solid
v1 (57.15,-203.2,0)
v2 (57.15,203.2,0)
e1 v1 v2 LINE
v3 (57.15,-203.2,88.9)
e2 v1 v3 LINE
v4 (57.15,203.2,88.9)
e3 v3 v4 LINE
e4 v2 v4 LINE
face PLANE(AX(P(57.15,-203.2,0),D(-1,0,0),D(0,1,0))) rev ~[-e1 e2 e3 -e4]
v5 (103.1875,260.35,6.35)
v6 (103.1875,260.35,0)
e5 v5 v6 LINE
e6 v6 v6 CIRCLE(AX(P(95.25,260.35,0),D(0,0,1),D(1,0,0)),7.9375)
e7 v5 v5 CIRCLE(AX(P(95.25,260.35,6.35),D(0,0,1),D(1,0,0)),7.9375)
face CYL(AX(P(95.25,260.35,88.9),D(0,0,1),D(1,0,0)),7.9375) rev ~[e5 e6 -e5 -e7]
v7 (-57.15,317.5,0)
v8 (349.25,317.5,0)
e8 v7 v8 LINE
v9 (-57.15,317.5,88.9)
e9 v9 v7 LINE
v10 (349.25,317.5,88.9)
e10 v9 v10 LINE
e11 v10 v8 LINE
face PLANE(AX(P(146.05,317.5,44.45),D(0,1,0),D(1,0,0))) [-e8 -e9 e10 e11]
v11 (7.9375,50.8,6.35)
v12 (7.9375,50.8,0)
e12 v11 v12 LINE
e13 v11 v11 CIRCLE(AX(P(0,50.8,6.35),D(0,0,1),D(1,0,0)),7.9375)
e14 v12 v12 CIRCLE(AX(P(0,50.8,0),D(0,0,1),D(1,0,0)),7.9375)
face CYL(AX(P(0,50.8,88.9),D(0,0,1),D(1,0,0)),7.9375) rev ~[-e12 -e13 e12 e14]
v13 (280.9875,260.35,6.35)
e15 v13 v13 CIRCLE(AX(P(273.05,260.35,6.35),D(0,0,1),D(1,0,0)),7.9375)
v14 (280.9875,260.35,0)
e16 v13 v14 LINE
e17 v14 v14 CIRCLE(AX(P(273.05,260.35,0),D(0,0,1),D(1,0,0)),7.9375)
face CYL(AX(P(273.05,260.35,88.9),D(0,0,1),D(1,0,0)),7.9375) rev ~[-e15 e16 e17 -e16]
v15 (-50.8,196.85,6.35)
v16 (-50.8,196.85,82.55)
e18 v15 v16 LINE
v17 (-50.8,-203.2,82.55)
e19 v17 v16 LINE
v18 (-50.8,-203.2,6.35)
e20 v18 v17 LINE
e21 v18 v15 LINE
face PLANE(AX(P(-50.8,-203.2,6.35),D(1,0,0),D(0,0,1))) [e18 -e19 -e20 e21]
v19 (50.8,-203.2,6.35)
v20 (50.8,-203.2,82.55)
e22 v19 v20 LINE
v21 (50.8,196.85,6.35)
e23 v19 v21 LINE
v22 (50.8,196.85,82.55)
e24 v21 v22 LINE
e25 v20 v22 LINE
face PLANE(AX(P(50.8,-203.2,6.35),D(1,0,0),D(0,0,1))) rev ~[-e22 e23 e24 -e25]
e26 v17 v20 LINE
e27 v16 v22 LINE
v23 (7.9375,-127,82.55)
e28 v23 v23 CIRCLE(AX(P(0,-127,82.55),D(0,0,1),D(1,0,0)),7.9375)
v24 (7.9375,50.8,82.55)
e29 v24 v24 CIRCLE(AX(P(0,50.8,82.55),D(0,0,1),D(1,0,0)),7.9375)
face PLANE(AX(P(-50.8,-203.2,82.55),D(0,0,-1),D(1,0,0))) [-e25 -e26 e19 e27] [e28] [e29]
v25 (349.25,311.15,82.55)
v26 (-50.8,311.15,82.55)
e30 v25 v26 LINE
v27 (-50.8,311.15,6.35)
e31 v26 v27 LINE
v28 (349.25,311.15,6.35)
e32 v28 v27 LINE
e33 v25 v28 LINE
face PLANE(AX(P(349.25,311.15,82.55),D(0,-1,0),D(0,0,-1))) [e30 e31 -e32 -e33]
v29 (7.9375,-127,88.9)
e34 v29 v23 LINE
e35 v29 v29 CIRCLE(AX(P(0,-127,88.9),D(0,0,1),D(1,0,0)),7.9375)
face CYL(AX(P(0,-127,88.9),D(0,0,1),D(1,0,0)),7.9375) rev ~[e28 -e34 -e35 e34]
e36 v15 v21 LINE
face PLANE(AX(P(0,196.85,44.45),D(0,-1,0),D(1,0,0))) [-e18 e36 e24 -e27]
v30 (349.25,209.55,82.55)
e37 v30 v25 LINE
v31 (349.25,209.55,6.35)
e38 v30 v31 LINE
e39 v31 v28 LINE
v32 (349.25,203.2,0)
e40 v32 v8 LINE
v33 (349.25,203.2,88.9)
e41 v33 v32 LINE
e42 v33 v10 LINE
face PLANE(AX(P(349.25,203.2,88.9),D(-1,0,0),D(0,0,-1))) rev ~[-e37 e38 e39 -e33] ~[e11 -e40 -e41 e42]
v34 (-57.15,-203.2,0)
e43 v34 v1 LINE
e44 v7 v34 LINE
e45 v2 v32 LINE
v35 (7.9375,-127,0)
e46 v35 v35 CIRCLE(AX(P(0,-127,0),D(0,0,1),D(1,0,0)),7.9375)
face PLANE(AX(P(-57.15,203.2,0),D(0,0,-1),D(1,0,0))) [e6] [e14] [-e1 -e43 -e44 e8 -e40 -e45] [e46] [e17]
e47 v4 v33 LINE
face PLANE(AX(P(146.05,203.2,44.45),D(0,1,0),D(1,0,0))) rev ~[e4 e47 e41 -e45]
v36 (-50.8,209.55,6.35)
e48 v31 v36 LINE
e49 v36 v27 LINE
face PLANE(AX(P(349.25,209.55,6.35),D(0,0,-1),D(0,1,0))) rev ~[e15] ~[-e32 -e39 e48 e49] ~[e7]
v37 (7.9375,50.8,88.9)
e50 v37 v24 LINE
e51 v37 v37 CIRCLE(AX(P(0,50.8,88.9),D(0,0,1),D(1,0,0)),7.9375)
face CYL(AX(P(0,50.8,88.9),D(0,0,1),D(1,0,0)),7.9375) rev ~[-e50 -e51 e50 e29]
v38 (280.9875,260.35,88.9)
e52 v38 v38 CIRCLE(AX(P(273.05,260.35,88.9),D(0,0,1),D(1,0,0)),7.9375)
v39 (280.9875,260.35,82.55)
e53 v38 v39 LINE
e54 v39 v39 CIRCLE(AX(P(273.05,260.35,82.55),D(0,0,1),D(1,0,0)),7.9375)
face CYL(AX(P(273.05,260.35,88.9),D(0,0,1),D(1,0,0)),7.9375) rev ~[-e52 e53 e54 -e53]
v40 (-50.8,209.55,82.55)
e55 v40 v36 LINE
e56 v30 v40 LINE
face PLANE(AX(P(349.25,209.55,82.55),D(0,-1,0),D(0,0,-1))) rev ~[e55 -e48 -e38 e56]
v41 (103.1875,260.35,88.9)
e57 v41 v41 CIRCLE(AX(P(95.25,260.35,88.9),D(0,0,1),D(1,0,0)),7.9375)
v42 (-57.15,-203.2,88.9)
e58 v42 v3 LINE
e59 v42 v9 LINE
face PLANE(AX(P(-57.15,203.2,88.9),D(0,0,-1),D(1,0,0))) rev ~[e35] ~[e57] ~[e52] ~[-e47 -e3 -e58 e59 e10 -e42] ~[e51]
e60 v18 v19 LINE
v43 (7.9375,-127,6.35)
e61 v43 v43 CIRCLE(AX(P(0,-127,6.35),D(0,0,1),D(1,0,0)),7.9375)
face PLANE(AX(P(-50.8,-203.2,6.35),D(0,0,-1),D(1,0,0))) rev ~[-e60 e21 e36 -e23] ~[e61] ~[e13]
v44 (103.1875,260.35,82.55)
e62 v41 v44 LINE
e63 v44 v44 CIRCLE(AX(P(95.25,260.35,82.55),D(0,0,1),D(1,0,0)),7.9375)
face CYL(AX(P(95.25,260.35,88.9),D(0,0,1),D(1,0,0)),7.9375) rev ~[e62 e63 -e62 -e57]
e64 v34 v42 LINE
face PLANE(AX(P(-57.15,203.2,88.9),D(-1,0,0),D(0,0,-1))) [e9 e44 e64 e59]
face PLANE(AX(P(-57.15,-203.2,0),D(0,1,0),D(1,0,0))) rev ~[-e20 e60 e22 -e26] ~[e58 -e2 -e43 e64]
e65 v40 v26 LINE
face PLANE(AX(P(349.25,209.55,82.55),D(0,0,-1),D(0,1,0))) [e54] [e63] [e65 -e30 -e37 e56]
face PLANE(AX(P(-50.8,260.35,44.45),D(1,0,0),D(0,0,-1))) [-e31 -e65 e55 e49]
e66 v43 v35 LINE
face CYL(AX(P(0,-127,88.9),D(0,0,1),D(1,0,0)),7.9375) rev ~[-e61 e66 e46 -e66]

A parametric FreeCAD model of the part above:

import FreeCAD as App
import Part
import Sketcher
from FreeCAD import Vector
Q = App.Units.Quantity

doc = App.newDocument("Part")
body = doc.addObject("PartDesign::Body", "Body")

# Sketch on XY plane
sketch1 = doc.addObject("Sketcher::SketchObject", "Sketch")
body.addObject(sketch1)
sketch1.AttachmentSupport = (doc.XY_Plane, [""])
sketch1.MapMode = "FlatFace"
sketch1.addGeometry([
    Part.LineSegment(Vector(-57.15, 203.2, 0), Vector(-57.15, -203.2, 0)),
    Part.LineSegment(Vector(-57.15, -203.2, 0), Vector(57.15, -203.2, 0)),
    Part.LineSegment(Vector(57.15, -203.2, 0), Vector(57.15, 203.2, 0)),
    Part.LineSegment(Vector(57.15, 203.2, 0), Vector(-57.15, 203.2, 0)),
], False)
sketch1.addConstraint([
    Sketcher.Constraint("Coincident", 0, 2, 1, 1),
    Sketcher.Constraint("Coincident", 1, 2, 2, 1),
    Sketcher.Constraint("Coincident", 2, 2, 3, 1),
    Sketcher.Constraint("Coincident", 3, 2, 0, 1),
    Sketcher.Constraint("Vertical", 0),
    Sketcher.Constraint("Horizontal", 1),
    Sketcher.Constraint("Vertical", 2),
    Sketcher.Constraint("Horizontal", 3),
    Sketcher.Constraint("Symmetric", 0, 2, 2, 2, -1, 1),
    Sketcher.Constraint("DistanceY", 0, 2, 0, 1, Q("16 in")),
    Sketcher.Constraint("DistanceX", 1, 1, 1, 2, Q("4.5 in")),
])
pad1 = doc.addObject("PartDesign::Pad", "Pad")
body.addObject(pad1)
pad1.Profile = sketch1
pad1.Length = Q("3.5 in")

# Sketch on XZ plane
sketch2 = doc.addObject("Sketcher::SketchObject", "Sketch001")
body.addObject(sketch2)
sketch2.AttachmentSupport = (doc.XZ_Plane, [""])
sketch2.MapMode = "FlatFace"
sketch2.AttachmentOffset = App.Placement(Vector(0, 0, -8 * 25.4), App.Rotation())
sketch2.addGeometry([
    Part.LineSegment(Vector(-57.15, 0, 0), Vector(-57.15, 88.9, 0)),
    Part.LineSegment(Vector(-57.15, 88.9, 0), Vector(349.25, 88.9, 0)),
    Part.LineSegment(Vector(349.25, 88.9, 0), Vector(349.25, 0, 0)),
    Part.LineSegment(Vector(349.25, 0, 0), Vector(-57.15, 0, 0)),
], False)
sketch2.addConstraint([
    Sketcher.Constraint("Coincident", 0, 2, 1, 1),
    Sketcher.Constraint("Coincident", 1, 2, 2, 1),
    Sketcher.Constraint("Coincident", 2, 2, 3, 1),
    Sketcher.Constraint("Coincident", 3, 2, 0, 1),
    Sketcher.Constraint("Vertical", 0),
    Sketcher.Constraint("Horizontal", 1),
    Sketcher.Constraint("Vertical", 2),
    Sketcher.Constraint("Horizontal", 3),
    Sketcher.Constraint("PointOnObject", 2, 2, -1),
    Sketcher.Constraint("DistanceX", 1, 1, 1, 2, Q("16 in")),
    Sketcher.Constraint("DistanceY", 0, 1, 0, 2, Q("3.5 in")),
    Sketcher.Constraint("DistanceX", 0, 2, -1, 1, Q("2.25 in")),
])
pad2 = doc.addObject("PartDesign::Pad", "Pad001")
body.addObject(pad2)
pad2.Profile = sketch2
pad2.Length = Q("4.5 in")
pad2.Reversed = True

# Sketch on YZ plane
sketch3 = doc.addObject("Sketcher::SketchObject", "Sketch002")
body.addObject(sketch3)
sketch3.AttachmentSupport = (doc.YZ_Plane, [""])
sketch3.MapMode = "FlatFace"
sketch3.AttachmentOffset = App.Placement(Vector(0, 0, 13.75 * 25.4), App.Rotation())
sketch3.addGeometry([
    Part.LineSegment(Vector(311.15, 82.55, 0), Vector(209.55, 82.55, 0)),
    Part.LineSegment(Vector(209.55, 82.55, 0), Vector(209.55, 6.35, 0)),
    Part.LineSegment(Vector(209.55, 6.35, 0), Vector(311.15, 6.35, 0)),
    Part.LineSegment(Vector(311.15, 6.35, 0), Vector(311.15, 82.55, 0)),
], False)
sketch3.addConstraint([
    Sketcher.Constraint("Coincident", 0, 2, 1, 1),
    Sketcher.Constraint("Coincident", 1, 2, 2, 1),
    Sketcher.Constraint("Coincident", 2, 2, 3, 1),
    Sketcher.Constraint("Coincident", 3, 2, 0, 1),
    Sketcher.Constraint("Horizontal", 0),
    Sketcher.Constraint("Vertical", 1),
    Sketcher.Constraint("Horizontal", 2),
    Sketcher.Constraint("Vertical", 3),
    Sketcher.Constraint("DistanceX", 0, 2, 0, 1, Q("4 in")),
    Sketcher.Constraint("DistanceY", 1, 2, 1, 1, Q("3 in")),
    Sketcher.Constraint("DistanceX", -1, 1, 0, 2, Q("8.25 in")),
    Sketcher.Constraint("DistanceY", -1, 1, 0, 2, Q("3.25 in")),
])
pocket1 = doc.addObject("PartDesign::Pocket", "Pocket")
body.addObject(pocket1)
pocket1.Profile = sketch3
pocket1.Length = Q("15.75 in")

# Sketch on XZ plane
sketch4 = doc.addObject("Sketcher::SketchObject", "Sketch003")
body.addObject(sketch4)
sketch4.AttachmentSupport = (doc.XZ_Plane, [""])
sketch4.MapMode = "FlatFace"
sketch4.AttachmentOffset = App.Placement(Vector(0, 0, 8 * 25.4), App.Rotation())
sketch4.addGeometry([
    Part.LineSegment(Vector(-50.8, 82.55, 0), Vector(-50.8, 6.35, 0)),
    Part.LineSegment(Vector(-50.8, 6.35, 0), Vector(50.8, 6.35, 0)),
    Part.LineSegment(Vector(50.8, 6.35, 0), Vector(50.8, 82.55, 0)),
    Part.LineSegment(Vector(50.8, 82.55, 0), Vector(-50.8, 82.55, 0)),
], False)
sketch4.addConstraint([
    Sketcher.Constraint("Coincident", 0, 2, 1, 1),
    Sketcher.Constraint("Coincident", 1, 2, 2, 1),
    Sketcher.Constraint("Coincident", 2, 2, 3, 1),
    Sketcher.Constraint("Coincident", 3, 2, 0, 1),
    Sketcher.Constraint("Vertical", 0),
    Sketcher.Constraint("Horizontal", 1),
    Sketcher.Constraint("Vertical", 2),
    Sketcher.Constraint("Horizontal", 3),
    Sketcher.Constraint("DistanceX", 1, 1, 1, 2, Q("4 in")),
    Sketcher.Constraint("DistanceY", 0, 2, 0, 1, Q("3 in")),
    Sketcher.Constraint("DistanceX", 0, 2, -1, 1, Q("2 in")),
    Sketcher.Constraint("DistanceY", -1, 1, 0, 2, Q("0.25 in")),
])
pocket2 = doc.addObject("PartDesign::Pocket", "Pocket001")
body.addObject(pocket2)
pocket2.Profile = sketch4
pocket2.Length = Q("15.75 in")

# Sketch on XY plane
sketch5 = doc.addObject("Sketcher::SketchObject", "Sketch004")
body.addObject(sketch5)
sketch5.AttachmentSupport = (doc.XY_Plane, [""])
sketch5.MapMode = "FlatFace"
sketch5.AttachmentOffset = App.Placement(Vector(0, 0, 3.5 * 25.4), App.Rotation())
sketch5.addGeometry([
    Part.Circle(Vector(273.05, 260.35, 0), Vector(0, 0, 1), 7.9375),
    Part.Circle(Vector(95.25, 260.35, 0), Vector(0, 0, 1), 7.9375),
], False)
sketch5.addConstraint([
    Sketcher.Constraint("Equal", 0, 1),
    Sketcher.Constraint("Horizontal", 0, 3, 1, 3),
    Sketcher.Constraint("Diameter", 0, Q("0.625 in")),
    Sketcher.Constraint("DistanceX", 1, 3, 0, 3, Q("7 in")),
    Sketcher.Constraint("DistanceX", -1, 1, 0, 3, Q("10.75 in")),
    Sketcher.Constraint("DistanceY", -1, 1, 0, 3, Q("10.25 in")),
])
pocket3 = doc.addObject("PartDesign::Pocket", "Pocket002")
body.addObject(pocket3)
pocket3.Profile = sketch5
pocket3.Length = Q("15.75 in")

# Sketch on XY plane
sketch6 = doc.addObject("Sketcher::SketchObject", "Sketch005")
body.addObject(sketch6)
sketch6.AttachmentSupport = (doc.XY_Plane, [""])
sketch6.MapMode = "FlatFace"
sketch6.AttachmentOffset = App.Placement(Vector(0, 0, 3.5 * 25.4), App.Rotation())
sketch6.addGeometry([
    Part.Circle(Vector(0, -127, 0), Vector(0, 0, 1), 7.9375),
    Part.Circle(Vector(0, 50.8, 0), Vector(0, 0, 1), 7.9375),
], False)
sketch6.addConstraint([
    Sketcher.Constraint("Equal", 0, 1),
    Sketcher.Constraint("PointOnObject", 0, 3, -2),
    Sketcher.Constraint("PointOnObject", 1, 3, -2),
    Sketcher.Constraint("Diameter", 0, Q("0.625 in")),
    Sketcher.Constraint("DistanceY", 0, 3, -1, 1, Q("5 in")),
    Sketcher.Constraint("DistanceY", -1, 1, 1, 3, Q("2 in")),
])
pocket4 = doc.addObject("PartDesign::Pocket", "Pocket003")
body.addObject(pocket4)
pocket4.Profile = sketch6
pocket4.Length = Q("15.75 in")

doc.recompute()
